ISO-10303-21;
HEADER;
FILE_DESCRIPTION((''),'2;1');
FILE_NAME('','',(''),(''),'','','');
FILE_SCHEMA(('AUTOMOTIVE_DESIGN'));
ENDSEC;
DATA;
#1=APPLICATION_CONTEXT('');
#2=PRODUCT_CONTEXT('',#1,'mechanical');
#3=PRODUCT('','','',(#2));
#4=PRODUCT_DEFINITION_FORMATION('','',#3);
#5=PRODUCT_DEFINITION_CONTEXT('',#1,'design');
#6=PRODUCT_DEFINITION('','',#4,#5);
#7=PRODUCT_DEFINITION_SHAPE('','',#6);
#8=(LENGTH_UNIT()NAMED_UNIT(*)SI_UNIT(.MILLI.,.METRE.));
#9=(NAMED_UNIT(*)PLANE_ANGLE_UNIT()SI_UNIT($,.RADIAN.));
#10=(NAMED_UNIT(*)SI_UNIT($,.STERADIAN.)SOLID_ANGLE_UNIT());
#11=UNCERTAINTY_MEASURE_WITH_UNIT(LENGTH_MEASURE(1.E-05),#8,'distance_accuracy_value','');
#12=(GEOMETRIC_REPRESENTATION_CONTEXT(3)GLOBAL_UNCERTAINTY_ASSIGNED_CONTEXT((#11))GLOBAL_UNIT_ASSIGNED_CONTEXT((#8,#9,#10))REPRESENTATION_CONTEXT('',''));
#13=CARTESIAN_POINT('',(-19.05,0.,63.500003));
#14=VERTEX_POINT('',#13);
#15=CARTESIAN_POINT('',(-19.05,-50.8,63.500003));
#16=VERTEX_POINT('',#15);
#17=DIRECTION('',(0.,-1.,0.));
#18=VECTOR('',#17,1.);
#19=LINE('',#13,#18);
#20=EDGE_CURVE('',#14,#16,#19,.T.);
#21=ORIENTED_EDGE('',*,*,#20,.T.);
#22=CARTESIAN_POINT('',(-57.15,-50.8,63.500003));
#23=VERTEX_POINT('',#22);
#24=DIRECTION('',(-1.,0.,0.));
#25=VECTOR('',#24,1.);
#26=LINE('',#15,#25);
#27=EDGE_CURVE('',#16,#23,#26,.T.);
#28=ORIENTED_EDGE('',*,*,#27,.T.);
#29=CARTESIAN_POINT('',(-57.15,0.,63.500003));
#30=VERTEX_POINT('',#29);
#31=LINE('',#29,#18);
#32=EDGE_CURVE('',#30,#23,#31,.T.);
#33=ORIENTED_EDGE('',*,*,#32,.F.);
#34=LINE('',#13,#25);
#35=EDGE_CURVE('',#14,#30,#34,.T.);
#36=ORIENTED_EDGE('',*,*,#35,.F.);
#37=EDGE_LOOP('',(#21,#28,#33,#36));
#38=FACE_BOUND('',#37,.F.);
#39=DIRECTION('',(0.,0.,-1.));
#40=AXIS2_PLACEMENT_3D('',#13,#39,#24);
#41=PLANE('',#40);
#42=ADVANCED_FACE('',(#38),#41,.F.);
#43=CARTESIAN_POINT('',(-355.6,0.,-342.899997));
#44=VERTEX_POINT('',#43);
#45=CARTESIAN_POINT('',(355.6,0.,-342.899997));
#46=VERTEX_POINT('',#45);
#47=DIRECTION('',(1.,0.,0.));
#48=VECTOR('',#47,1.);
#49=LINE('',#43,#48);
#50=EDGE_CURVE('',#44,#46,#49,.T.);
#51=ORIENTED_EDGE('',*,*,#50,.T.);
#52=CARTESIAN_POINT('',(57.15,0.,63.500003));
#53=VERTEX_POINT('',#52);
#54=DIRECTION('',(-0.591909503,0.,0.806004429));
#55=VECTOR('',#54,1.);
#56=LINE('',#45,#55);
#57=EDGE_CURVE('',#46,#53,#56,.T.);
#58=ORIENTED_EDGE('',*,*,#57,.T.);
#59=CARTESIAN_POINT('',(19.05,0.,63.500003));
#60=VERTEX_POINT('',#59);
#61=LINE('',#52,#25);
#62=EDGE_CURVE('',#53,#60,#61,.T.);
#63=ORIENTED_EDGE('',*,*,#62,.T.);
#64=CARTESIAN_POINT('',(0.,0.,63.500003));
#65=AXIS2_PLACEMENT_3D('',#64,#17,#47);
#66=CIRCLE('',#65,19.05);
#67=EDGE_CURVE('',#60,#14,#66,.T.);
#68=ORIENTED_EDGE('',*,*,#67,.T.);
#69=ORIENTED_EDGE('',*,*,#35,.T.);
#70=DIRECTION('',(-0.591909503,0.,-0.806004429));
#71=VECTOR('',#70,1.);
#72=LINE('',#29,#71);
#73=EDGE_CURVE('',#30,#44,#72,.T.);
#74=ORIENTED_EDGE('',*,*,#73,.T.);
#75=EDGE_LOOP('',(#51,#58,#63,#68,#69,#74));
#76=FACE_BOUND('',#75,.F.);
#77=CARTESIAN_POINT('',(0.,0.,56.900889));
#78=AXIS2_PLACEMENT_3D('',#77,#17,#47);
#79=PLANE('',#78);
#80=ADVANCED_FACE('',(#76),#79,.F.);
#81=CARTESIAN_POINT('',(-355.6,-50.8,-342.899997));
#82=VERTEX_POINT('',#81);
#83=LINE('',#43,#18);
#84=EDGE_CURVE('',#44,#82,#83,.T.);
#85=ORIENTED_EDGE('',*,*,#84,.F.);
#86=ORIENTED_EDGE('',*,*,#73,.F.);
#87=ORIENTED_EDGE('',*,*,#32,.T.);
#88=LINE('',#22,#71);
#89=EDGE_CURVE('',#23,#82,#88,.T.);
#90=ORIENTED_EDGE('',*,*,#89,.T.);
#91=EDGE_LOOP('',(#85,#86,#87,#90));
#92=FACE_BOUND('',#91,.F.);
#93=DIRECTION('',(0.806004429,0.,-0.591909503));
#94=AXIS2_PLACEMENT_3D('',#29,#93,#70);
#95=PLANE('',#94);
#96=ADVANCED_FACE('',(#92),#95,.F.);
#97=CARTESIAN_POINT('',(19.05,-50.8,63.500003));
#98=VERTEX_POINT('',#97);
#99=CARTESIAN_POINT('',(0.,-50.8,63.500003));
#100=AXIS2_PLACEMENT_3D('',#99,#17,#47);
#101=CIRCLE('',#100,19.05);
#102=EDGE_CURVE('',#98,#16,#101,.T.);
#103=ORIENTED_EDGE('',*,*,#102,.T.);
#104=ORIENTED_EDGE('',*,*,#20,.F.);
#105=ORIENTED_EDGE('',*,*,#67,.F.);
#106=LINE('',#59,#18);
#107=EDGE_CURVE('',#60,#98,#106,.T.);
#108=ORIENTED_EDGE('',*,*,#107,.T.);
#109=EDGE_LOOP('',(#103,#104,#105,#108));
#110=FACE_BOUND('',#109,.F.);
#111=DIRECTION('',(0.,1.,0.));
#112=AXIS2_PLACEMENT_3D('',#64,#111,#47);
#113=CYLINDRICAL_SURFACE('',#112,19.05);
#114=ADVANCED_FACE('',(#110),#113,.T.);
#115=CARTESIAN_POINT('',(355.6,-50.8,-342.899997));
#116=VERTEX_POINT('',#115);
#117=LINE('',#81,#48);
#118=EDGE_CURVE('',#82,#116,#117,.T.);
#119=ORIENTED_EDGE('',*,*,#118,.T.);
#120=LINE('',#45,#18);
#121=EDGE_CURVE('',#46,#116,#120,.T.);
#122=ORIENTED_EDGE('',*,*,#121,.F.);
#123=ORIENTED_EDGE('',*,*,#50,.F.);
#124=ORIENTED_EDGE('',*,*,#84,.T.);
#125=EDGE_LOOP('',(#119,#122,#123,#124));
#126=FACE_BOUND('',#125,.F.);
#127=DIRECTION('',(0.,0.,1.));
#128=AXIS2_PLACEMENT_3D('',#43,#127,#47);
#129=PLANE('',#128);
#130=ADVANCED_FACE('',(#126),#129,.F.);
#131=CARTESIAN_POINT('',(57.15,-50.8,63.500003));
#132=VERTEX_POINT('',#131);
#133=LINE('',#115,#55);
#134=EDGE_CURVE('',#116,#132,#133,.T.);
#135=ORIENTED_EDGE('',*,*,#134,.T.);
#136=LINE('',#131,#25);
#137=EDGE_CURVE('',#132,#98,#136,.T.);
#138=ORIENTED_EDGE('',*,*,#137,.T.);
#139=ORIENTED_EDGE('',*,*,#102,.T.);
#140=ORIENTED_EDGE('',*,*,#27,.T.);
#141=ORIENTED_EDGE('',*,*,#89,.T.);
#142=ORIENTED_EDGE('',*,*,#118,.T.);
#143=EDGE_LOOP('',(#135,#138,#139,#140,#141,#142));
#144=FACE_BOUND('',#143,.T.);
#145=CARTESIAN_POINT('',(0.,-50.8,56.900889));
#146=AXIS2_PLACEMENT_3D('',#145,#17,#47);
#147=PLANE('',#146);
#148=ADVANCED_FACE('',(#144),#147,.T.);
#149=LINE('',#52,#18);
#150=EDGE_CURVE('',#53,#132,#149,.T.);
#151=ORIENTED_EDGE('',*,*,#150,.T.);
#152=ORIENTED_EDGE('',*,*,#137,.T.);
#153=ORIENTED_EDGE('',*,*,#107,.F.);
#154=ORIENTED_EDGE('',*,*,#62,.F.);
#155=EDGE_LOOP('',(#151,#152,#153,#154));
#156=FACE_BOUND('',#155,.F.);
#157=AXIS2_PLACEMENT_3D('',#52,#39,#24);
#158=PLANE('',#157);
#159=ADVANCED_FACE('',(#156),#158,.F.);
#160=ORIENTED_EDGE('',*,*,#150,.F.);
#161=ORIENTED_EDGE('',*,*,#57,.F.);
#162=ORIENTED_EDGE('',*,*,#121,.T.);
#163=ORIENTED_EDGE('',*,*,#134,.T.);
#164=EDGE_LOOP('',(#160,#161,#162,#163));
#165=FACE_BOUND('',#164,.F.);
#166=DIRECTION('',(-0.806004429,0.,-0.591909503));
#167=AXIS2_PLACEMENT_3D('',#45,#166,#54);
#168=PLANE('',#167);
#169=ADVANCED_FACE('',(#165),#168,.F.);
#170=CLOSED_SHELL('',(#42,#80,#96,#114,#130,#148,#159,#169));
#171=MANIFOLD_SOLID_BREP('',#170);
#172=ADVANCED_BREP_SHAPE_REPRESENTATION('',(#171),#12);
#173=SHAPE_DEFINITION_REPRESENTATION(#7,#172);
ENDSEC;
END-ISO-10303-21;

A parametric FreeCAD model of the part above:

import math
import FreeCAD as App
import Part
import Sketcher
Q = App.Units.Quantity

doc = App.newDocument("Part")
params = doc.addObject("Spreadsheet::Sheet", "Params")
for row, (alias, value) in enumerate([
    ("sketch1_width", "28 in"),
    ("sketch1_radius", "0.75 in"),
    ("sketch1_width2", "1.5 in"),
    ("pad1_length", "2 in"),
], start=1):
    params.set(f"A{row}", alias)
    params.set(f"B{row}", "=" + value)
    params.setAlias(f"B{row}", alias)

body = doc.addObject("PartDesign::Body", "Body")

# Sketch on XZ plane
sketch1 = body.newObject("Sketcher::SketchObject", "Sketch")
sketch1.AttachmentSupport = (doc.getObject("XZ_Plane"), [""])
sketch1.MapMode = "FlatFace"
sketch1.addGeometry([
    Part.ArcOfCircle(Part.Circle(App.Vector(0, 63.500003, 0), App.Vector(0, 0, 1), 19.05), math.radians(0), math.radians(180)),  # 0
    Part.LineSegment(App.Vector(-19.05, 63.500003, 0), App.Vector(-57.15, 63.500003, 0)),  # 1
    Part.LineSegment(App.Vector(-57.15, 63.500003, 0), App.Vector(-355.6, -342.899997, 0)),  # 2
    Part.LineSegment(App.Vector(-355.6, -342.899997, 0), App.Vector(355.6, -342.899997, 0)),  # 3
    Part.LineSegment(App.Vector(355.6, -342.899997, 0), App.Vector(57.15, 63.500003, 0)),  # 4
    Part.LineSegment(App.Vector(57.15, 63.500003, 0), App.Vector(19.05, 63.500003, 0)),  # 5
], False)
sketch1.addConstraint([
    Sketcher.Constraint("Coincident", 0, 2, 1, 1),
    Sketcher.Constraint("Coincident", 1, 2, 2, 1),
    Sketcher.Constraint("Coincident", 2, 2, 3, 1),
    Sketcher.Constraint("Coincident", 3, 2, 4, 1),
    Sketcher.Constraint("Coincident", 4, 2, 5, 1),
    Sketcher.Constraint("Coincident", 5, 2, 0, 1),
    Sketcher.Constraint("Horizontal", 1),
    Sketcher.Constraint("Horizontal", 3),
    Sketcher.Constraint("Horizontal", 5),
    Sketcher.Constraint("Symmetric", 1, 2, 4, 2, -2),
    Sketcher.Constraint("PointOnObject", 0, 3, -2),
    Sketcher.Constraint("Equal", 2, 4),
    Sketcher.Constraint("DistanceX", 3, 1, 3, 2, Q("28 in")),
    Sketcher.Constraint("Radius", 0, Q("0.75 in")),
    Sketcher.Constraint("DistanceX", 1, 2, 1, 1, Q("1.5 in")),
    Sketcher.Constraint("DistanceY", 2, 2, 1, 2, Q("16 in")),
    Sketcher.Constraint("DistanceY", 2, 2, 0, 3, Q("16 in")),
    Sketcher.Constraint("DistanceY", -1, 1, 0, 3, Q("2.5000001 in")),
])
sketch1.setExpression("Constraints[12]", "Params.sketch1_width")
sketch1.setExpression("Constraints[13]", "Params.sketch1_radius")
sketch1.setExpression("Constraints[14]", "Params.sketch1_width2")
pad1 = body.newObject("PartDesign::Pad", "Pad")
pad1.Profile = sketch1
pad1.setExpression("Length", "Params.pad1_length")

doc.recompute()
